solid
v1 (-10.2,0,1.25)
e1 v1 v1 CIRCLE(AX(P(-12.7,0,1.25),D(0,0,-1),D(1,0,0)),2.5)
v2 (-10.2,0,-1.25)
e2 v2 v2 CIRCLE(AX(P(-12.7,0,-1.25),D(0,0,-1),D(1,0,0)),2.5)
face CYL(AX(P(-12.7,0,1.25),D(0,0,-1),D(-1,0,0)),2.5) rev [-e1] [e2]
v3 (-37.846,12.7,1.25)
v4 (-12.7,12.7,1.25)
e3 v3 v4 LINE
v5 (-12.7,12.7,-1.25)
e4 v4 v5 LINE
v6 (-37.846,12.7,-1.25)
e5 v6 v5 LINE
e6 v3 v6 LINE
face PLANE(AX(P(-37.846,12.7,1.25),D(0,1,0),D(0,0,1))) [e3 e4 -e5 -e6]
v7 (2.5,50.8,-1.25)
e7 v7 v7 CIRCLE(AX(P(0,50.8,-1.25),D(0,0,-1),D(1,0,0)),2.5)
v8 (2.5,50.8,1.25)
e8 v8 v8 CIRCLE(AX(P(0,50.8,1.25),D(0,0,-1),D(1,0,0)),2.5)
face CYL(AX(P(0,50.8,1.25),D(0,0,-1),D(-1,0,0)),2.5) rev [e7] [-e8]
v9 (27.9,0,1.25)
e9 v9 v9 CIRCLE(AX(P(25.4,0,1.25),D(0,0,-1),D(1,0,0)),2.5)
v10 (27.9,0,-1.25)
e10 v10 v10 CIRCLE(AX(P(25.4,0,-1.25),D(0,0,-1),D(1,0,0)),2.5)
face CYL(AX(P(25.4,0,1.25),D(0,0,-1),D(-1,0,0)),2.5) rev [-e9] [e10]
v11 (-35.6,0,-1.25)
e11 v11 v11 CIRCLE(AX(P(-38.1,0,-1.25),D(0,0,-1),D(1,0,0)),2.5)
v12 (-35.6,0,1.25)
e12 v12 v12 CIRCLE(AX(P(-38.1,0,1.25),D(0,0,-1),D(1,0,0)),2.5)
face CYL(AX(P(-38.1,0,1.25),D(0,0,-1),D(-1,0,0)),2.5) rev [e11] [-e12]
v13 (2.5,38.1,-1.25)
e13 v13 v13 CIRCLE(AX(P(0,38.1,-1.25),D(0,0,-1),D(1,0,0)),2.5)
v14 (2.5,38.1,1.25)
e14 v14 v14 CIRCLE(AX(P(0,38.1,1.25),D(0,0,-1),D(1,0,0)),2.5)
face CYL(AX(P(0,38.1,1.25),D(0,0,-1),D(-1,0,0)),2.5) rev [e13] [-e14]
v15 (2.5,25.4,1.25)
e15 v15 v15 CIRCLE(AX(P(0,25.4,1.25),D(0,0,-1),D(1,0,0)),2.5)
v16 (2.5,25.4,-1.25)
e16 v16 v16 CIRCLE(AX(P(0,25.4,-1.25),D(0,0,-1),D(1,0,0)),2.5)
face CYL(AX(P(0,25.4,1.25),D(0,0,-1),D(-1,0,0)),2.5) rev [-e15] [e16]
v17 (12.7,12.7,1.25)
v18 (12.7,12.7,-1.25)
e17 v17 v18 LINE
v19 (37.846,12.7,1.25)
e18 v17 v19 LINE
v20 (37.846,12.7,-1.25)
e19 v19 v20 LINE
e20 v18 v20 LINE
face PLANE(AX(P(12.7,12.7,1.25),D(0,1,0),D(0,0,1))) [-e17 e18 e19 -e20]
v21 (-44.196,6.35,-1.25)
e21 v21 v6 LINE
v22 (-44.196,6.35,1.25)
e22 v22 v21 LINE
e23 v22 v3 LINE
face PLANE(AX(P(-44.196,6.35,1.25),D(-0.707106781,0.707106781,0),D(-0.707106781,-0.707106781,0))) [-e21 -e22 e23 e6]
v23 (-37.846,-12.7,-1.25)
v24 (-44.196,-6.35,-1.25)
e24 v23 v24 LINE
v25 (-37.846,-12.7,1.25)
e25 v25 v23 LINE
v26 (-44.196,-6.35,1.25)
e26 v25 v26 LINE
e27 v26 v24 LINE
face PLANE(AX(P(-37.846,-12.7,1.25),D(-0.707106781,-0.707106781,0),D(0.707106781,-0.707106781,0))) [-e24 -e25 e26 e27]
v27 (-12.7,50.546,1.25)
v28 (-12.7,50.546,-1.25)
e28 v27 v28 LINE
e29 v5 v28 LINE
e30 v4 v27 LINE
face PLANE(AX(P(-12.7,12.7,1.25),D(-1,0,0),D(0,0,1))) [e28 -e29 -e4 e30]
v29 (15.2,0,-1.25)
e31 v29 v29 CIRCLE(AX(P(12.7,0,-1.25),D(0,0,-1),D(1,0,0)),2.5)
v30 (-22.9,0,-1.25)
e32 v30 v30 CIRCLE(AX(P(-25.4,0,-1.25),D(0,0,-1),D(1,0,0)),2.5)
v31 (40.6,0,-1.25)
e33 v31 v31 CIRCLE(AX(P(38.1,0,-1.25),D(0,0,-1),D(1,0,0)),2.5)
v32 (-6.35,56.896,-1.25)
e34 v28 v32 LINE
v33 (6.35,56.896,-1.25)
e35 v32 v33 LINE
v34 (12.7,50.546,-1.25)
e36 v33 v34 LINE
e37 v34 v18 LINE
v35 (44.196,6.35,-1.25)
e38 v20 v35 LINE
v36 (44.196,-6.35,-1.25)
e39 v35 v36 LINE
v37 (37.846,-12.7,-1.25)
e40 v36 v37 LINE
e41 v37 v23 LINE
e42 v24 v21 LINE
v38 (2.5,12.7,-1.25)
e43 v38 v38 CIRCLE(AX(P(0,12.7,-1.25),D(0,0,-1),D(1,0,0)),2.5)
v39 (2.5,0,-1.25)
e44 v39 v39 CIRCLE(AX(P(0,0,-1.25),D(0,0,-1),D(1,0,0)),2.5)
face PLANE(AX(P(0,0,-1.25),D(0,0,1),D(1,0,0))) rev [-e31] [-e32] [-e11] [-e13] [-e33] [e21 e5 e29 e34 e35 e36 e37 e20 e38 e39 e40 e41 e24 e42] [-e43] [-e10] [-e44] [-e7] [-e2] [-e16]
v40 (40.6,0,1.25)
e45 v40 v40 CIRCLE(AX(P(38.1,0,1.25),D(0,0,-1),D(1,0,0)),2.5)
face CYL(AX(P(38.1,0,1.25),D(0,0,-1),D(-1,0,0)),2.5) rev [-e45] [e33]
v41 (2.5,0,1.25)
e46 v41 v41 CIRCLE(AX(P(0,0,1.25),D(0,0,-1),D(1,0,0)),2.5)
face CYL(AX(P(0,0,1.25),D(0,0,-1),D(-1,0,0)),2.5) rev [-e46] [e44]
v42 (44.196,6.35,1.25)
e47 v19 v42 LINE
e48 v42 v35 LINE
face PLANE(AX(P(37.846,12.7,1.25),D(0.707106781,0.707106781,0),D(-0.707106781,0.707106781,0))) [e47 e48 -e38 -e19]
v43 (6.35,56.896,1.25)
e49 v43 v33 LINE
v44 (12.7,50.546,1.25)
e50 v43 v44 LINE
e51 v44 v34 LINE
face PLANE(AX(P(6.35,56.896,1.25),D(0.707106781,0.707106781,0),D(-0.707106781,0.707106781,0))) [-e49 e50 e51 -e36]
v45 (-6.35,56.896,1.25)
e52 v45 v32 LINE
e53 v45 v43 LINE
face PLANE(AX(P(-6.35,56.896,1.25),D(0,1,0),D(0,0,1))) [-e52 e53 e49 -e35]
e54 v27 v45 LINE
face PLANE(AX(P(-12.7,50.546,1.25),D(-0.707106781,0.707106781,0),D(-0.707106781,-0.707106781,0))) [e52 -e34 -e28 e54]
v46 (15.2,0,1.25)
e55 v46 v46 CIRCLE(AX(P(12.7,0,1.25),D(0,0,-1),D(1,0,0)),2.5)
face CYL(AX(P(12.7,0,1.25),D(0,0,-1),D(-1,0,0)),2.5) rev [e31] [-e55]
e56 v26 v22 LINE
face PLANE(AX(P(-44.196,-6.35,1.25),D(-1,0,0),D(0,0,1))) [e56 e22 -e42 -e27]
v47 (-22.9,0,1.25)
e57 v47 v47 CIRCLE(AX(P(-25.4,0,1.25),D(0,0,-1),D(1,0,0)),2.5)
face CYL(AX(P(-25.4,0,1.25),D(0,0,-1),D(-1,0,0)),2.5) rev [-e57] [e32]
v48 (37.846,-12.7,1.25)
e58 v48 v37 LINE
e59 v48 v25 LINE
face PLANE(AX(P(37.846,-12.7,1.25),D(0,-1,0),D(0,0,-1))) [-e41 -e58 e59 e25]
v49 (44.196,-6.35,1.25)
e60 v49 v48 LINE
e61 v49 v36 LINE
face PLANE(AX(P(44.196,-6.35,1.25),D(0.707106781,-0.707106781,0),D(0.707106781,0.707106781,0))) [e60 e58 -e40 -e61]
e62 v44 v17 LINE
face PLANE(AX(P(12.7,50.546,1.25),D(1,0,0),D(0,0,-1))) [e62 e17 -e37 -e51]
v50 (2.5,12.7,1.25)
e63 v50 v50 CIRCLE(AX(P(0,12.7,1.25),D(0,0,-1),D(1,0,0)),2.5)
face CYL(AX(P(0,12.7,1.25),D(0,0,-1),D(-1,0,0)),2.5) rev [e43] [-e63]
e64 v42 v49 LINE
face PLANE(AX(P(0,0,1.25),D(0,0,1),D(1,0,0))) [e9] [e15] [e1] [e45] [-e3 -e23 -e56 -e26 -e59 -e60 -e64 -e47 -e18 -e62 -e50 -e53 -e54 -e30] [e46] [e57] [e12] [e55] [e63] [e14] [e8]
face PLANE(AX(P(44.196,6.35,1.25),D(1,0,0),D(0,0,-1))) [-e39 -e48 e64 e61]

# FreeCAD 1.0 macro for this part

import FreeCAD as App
import Part
import Sketcher

V = App.Vector
Q = App.Units.Quantity


def add_polygon(sketch, points):
    """Adds a closed chain of lines whose ends are joined by coincident constraints."""
    first, n = sketch.GeometryCount, len(points)
    for a, b in zip(points, points[1:] + points[:1]):
        sketch.addGeometry(Part.LineSegment(App.Vector(*a, 0), App.Vector(*b, 0)), False)
    for i in range(n):
        sketch.addConstraint(Sketcher.Constraint("Coincident", first + i, 2, first + (i + 1) % n, 1))

doc = App.newDocument("Part")
body = doc.addObject("PartDesign::Body", "Body")

# Sketch on XY plane
sketch1 = body.newObject("Sketcher::SketchObject", "Sketch")
sketch1.AttachmentSupport = (doc.getObject("XY_Plane"), [""])
sketch1.MapMode = "FlatFace"
sketch1.AttachmentOffset = App.Placement(V(0, 0, -1.25), App.Rotation())
add_polygon(sketch1, [(-12.7, 12.7), (-12.7, 50.5), (-6.3, 56.9), (6.3, 56.9), (12.7, 50.5), (12.7, 12.7), (37.8, 12.7), (44.2, 6.3), (44.2, -6.3), (37.8, -12.7), (-37.8, -12.7), (-44.2, -6.3), (-44.2, 6.3), (-37.8, 12.7)])  # lines 0-13
sketch1.addGeometry(Part.Circle(V(38.1, 0, 0), V(0, 0, 1), 2.5), False)  # 14
sketch1.addGeometry(Part.Circle(V(25.4, 0, 0), V(0, 0, 1), 2.5), False)  # 15
sketch1.addGeometry(Part.Circle(V(12.7, 0, 0), V(0, 0, 1), 2.5), False)  # 16
sketch1.addGeometry(Part.Circle(V(0, 0, 0), V(0, 0, 1), 2.5), False)  # 17
sketch1.addGeometry(Part.Circle(V(0, 12.7, 0), V(0, 0, 1), 2.5), False)  # 18
sketch1.addGeometry(Part.Circle(V(-12.7, 0, 0), V(0, 0, 1), 2.5), False)  # 19
sketch1.addGeometry(Part.Circle(V(-25.4, 0, 0), V(0, 0, 1), 2.5), False)  # 20
sketch1.addGeometry(Part.Circle(V(-38.1, 0, 0), V(0, 0, 1), 2.5), False)  # 21
sketch1.addGeometry(Part.Circle(V(0, 25.4, 0), V(0, 0, 1), 2.5), False)  # 22
sketch1.addGeometry(Part.Circle(V(0, 38.1, 0), V(0, 0, 1), 2.5), False)  # 23
sketch1.addGeometry(Part.Circle(V(0, 50.8, 0), V(0, 0, 1), 2.5), False)  # 24
sketch1.addConstraint(Sketcher.Constraint("Vertical", 0))
sketch1.addConstraint(Sketcher.Constraint("Horizontal", 2))
sketch1.addConstraint(Sketcher.Constraint("Vertical", 4))
sketch1.addConstraint(Sketcher.Constraint("Horizontal", 5))
sketch1.addConstraint(Sketcher.Constraint("Vertical", 7))
sketch1.addConstraint(Sketcher.Constraint("Horizontal", 9))
sketch1.addConstraint(Sketcher.Constraint("Vertical", 11))
sketch1.addConstraint(Sketcher.Constraint("Horizontal", 13))
sketch1.addConstraint(Sketcher.Constraint("Coincident", 17, 3, -1, 1))
sketch1.addConstraint(Sketcher.Constraint("Equal", 14, 15))
sketch1.addConstraint(Sketcher.Constraint("Equal", 15, 16))
sketch1.addConstraint(Sketcher.Constraint("Equal", 16, 17))
sketch1.addConstraint(Sketcher.Constraint("Equal", 17, 18))
sketch1.addConstraint(Sketcher.Constraint("Equal", 18, 19))
sketch1.addConstraint(Sketcher.Constraint("Equal", 19, 20))
sketch1.addConstraint(Sketcher.Constraint("Equal", 20, 21))
sketch1.addConstraint(Sketcher.Constraint("Equal", 21, 22))
sketch1.addConstraint(Sketcher.Constraint("Equal", 22, 23))
sketch1.addConstraint(Sketcher.Constraint("Equal", 23, 24))
sketch1.addConstraint(Sketcher.Constraint("Symmetric", 16, 3, 19, 3, -1, 1))
sketch1.addConstraint(Sketcher.Constraint("Symmetric", 15, 3, 20, 3, -1, 1))
sketch1.addConstraint(Sketcher.Constraint("Symmetric", 14, 3, 21, 3, -1, 1))
sketch1.addConstraint(Sketcher.Constraint("Symmetric", 5, 2, 9, 2, -1, 1))
sketch1.addConstraint(Sketcher.Constraint("Symmetric", 6, 2, 10, 2, -1, 1))
sketch1.addConstraint(Sketcher.Constraint("Symmetric", 8, 2, 12, 2, -1, 1))
sketch1.addConstraint(Sketcher.Constraint("Symmetric", 0, 2, 3, 2, -2))
sketch1.addConstraint(Sketcher.Constraint("PointOnObject", 14, 3, -1))
sketch1.addConstraint(Sketcher.Constraint("PointOnObject", 15, 3, -1))
sketch1.addConstraint(Sketcher.Constraint("PointOnObject", 16, 3, -1))
sketch1.addConstraint(Sketcher.Constraint("PointOnObject", 18, 3, -2))
sketch1.addConstraint(Sketcher.Constraint("PointOnObject", 22, 3, -2))
sketch1.addConstraint(Sketcher.Constraint("PointOnObject", 23, 3, -2))
sketch1.addConstraint(Sketcher.Constraint("PointOnObject", 24, 3, -2))
sketch1.addConstraint(Sketcher.Constraint("Perpendicular", 1, 3))
sketch1.addConstraint(Sketcher.Constraint("Parallel", 3, 6))
sketch1.addConstraint(Sketcher.Constraint("Perpendicular", 6, 8))
sketch1.addConstraint(Sketcher.Constraint("Perpendicular", 10, 12))
sketch1.addConstraint(Sketcher.Constraint("Horizontal", 18, 3, 4, 2))
sketch1.addConstraint(Sketcher.Constraint("Horizontal", 7, 2, 10, 2))
sketch1.addConstraint(Sketcher.Constraint("Vertical", 19, 3, 0, 2))
sketch1.addConstraint(Sketcher.Constraint("Vertical", 5, 2, 8, 2))
sketch1.addConstraint(Sketcher.Constraint("Equal", 2, 7))
sketch1.addConstraint(Sketcher.Constraint("Equal", 3, 6))
sketch1.addConstraint(Sketcher.Constraint("DistanceX", 2, 1, 2, 2, Q("0.5 in")))
sketch1.addConstraint(Sketcher.Constraint("DistanceX", -1, 1, 15, 3, Q("1 in")))
sketch1.addConstraint(Sketcher.Constraint("DistanceY", -1, 1, 22, 3, Q("1 in")))
sketch1.addConstraint(Sketcher.Constraint("DistanceY", -1, 1, 24, 3, Q("2 in")))
sketch1.addConstraint(Sketcher.Constraint("DistanceX", 16, 3, 14, 3, Q("1 in")))
sketch1.addConstraint(Sketcher.Constraint("DistanceX", 19, 3, 16, 3, Q("1 in")))
sketch1.addConstraint(Sketcher.Constraint("DistanceY", 18, 3, 23, 3, Q("1 in")))
sketch1.addConstraint(Sketcher.Constraint("DistanceX", 5, 1, 5, 2, Q("0.99 in")))
sketch1.addConstraint(Sketcher.Constraint("DistanceY", 0, 1, 0, 2, Q("1.49 in")))
sketch1.addConstraint(Sketcher.Constraint("Diameter", 14, 5.0))
pad1 = body.newObject("PartDesign::Pad", "Pad")
pad1.Profile = sketch1
pad1.Length = 2.5

doc.recompute()
